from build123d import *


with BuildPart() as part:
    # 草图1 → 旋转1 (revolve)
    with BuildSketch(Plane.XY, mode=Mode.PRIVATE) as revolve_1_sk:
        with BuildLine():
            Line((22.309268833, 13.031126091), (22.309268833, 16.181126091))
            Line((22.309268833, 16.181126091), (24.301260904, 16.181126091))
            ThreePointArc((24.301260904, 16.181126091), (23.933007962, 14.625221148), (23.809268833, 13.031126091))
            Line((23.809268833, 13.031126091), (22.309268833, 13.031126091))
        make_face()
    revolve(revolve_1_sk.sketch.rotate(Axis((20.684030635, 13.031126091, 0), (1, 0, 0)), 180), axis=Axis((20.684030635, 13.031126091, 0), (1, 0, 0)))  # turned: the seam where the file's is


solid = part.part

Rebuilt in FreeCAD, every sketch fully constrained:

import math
import FreeCAD as App
import Part
import Sketcher
Q = App.Units.Quantity

doc = App.newDocument("Part")
body = doc.addObject("PartDesign::Body", "Body")

sketch1 = body.newObject("Sketcher::SketchObject", "Sketch")
sketch1.AttachmentSupport = (doc.getObject("XY_Plane"), [""])
sketch1.MapMode = "FlatFace"
sketch1.addGeometry([
    Part.LineSegment(App.Vector(22.3, 16.2, 0), App.Vector(22.3, 13, 0)),
    Part.LineSegment(App.Vector(22.3, 13, 0), App.Vector(23.8, 13, 0)),
    Part.ArcOfCircle(Part.Circle(App.Vector(34.1, 13, 0), App.Vector(0, 0, 1), 10.3), math.radians(162.25), math.radians(180)),
    Part.LineSegment(App.Vector(24.3, 16.2, 0), App.Vector(22.3, 16.2, 0)),
], False)
sketch1.addGeometry(Part.LineSegment(App.Vector(22.3, 13, 0), App.Vector(34.1, 13, 0)), True)
sketch1.addConstraint([
    Sketcher.Constraint("Coincident", 0, 2, 1, 1),
    Sketcher.Constraint("Coincident", 1, 2, 2, 2),
    Sketcher.Constraint("Coincident", 2, 1, 3, 1),
    Sketcher.Constraint("Coincident", 3, 2, 0, 1),
    Sketcher.Constraint("Vertical", 0),
    Sketcher.Constraint("Horizontal", 1),
    Sketcher.Constraint("Horizontal", 3),
    Sketcher.Constraint("Horizontal", 4),
    Sketcher.Constraint("Coincident", 4, 1, 0, 2),
    Sketcher.Constraint("Coincident", 4, 2, 2, 3),
    Sketcher.Constraint("Radius", 2, Q("10.33 mm")),
    Sketcher.Constraint("DistanceX", 1, 1, 1, 2, Q("1.5 mm")),
    Sketcher.Constraint("DistanceY", 0, 2, 0, 1, Q("3.15 mm")),
    Sketcher.Constraint("DistanceX", -1, 1, 2, 3, Q("34.139269 mm")),
    Sketcher.Constraint("DistanceY", -1, 1, 2, 3, Q("13.031126 mm")),
])
revolution = body.newObject("PartDesign::Revolution", "Revolution")
revolution.Profile = sketch1
revolution.ReferenceAxis = (sketch1, ["Axis0"])
revolution.Angle = 360

doc.recompute()
